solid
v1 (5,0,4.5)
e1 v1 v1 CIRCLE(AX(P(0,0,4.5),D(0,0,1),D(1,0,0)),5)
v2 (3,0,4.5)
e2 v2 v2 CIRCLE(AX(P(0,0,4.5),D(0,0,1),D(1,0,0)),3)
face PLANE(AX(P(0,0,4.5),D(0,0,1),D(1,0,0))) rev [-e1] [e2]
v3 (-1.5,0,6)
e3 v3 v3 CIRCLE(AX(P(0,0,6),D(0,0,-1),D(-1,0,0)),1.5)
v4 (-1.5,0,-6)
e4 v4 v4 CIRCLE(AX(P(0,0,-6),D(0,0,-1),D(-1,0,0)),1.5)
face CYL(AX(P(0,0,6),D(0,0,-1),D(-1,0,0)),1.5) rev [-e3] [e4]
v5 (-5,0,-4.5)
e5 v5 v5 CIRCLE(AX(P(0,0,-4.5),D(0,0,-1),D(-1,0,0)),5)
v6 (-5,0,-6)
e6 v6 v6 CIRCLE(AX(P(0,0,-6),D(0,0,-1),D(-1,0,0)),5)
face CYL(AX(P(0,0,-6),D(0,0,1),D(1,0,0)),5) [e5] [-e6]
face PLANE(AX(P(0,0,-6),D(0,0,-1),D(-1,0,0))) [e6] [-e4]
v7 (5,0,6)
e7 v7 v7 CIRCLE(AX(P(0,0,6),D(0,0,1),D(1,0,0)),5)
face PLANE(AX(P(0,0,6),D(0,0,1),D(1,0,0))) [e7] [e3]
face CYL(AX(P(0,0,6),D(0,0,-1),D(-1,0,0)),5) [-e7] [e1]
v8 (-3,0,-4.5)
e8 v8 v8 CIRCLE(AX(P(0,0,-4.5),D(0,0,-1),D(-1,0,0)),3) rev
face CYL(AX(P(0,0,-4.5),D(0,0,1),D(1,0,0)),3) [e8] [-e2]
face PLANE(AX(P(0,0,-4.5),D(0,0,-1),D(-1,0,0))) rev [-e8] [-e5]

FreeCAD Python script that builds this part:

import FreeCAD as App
import Part
import Sketcher
from FreeCAD import Vector

doc = App.newDocument("Part")
body = doc.addObject("PartDesign::Body", "Body")

sketch1 = body.newObject("Sketcher::SketchObject", "Sketch")
sketch1.AttachmentSupport = (doc.getObject("XY_Plane"), [""])
sketch1.MapMode = "FlatFace"
sketch1.addGeometry(Part.Circle(Vector(0, 0, 0), Vector(0, 0, 1), 3), False)
sketch1.addConstraint([
    Sketcher.Constraint("Coincident", 0, 3, -1, 1),
    Sketcher.Constraint("Diameter", 0, 6.0),
])
pad1 = body.newObject("PartDesign::Pad", "Pad")
pad1.Profile = sketch1
pad1.Type = "TwoLengths"
pad1.Length = 4.5
pad1.Length2 = 4.5

sketch2 = body.newObject("Sketcher::SketchObject", "Sketch001")
sketch2.AttachmentSupport = (doc.getObject("XY_Plane"), [""])
sketch2.MapMode = "FlatFace"
sketch2.AttachmentOffset = App.Placement(Vector(0, 0, 4.5), App.Rotation())
sketch2.addGeometry(Part.Circle(Vector(0, 0, 0), Vector(0, 0, 1), 5), False)
sketch2.addConstraint([
    Sketcher.Constraint("Coincident", 0, 3, -1, 1),
    Sketcher.Constraint("Diameter", 0, 10.0),
])
pad2 = body.newObject("PartDesign::Pad", "Pad001")
pad2.Profile = sketch2
pad2.Length = 1.5

sketch3 = body.newObject("Sketcher::SketchObject", "Sketch002")
sketch3.AttachmentSupport = (doc.getObject("XY_Plane"), [""])
sketch3.MapMode = "FlatFace"
sketch3.AttachmentOffset = App.Placement(Vector(0, 0, -6), App.Rotation())
sketch3.addGeometry(Part.Circle(Vector(0, 0, 0), Vector(0, 0, 1), 5), False)
sketch3.addConstraint([
    Sketcher.Constraint("Coincident", 0, 3, -1, 1),
    Sketcher.Constraint("Diameter", 0, 10.0),
])
pad3 = body.newObject("PartDesign::Pad", "Pad002")
pad3.Profile = sketch3
pad3.Length = 1.5

sketch4 = body.newObject("Sketcher::SketchObject", "Sketch003")
sketch4.AttachmentSupport = (doc.getObject("XY_Plane"), [""])
sketch4.MapMode = "FlatFace"
sketch4.AttachmentOffset = App.Placement(Vector(0, 0, -6), App.Rotation())
sketch4.addGeometry(Part.Circle(Vector(0, 0, 0), Vector(0, 0, 1), 1.5), False)
sketch4.addConstraint([
    Sketcher.Constraint("Coincident", 0, 3, -1, 1),
    Sketcher.Constraint("Diameter", 0, 3.0),
])
pocket1 = body.newObject("PartDesign::Pocket", "Pocket")
pocket1.Profile = sketch4
pocket1.Type = "ThroughAll"
pocket1.Reversed = True

doc.recompute()
